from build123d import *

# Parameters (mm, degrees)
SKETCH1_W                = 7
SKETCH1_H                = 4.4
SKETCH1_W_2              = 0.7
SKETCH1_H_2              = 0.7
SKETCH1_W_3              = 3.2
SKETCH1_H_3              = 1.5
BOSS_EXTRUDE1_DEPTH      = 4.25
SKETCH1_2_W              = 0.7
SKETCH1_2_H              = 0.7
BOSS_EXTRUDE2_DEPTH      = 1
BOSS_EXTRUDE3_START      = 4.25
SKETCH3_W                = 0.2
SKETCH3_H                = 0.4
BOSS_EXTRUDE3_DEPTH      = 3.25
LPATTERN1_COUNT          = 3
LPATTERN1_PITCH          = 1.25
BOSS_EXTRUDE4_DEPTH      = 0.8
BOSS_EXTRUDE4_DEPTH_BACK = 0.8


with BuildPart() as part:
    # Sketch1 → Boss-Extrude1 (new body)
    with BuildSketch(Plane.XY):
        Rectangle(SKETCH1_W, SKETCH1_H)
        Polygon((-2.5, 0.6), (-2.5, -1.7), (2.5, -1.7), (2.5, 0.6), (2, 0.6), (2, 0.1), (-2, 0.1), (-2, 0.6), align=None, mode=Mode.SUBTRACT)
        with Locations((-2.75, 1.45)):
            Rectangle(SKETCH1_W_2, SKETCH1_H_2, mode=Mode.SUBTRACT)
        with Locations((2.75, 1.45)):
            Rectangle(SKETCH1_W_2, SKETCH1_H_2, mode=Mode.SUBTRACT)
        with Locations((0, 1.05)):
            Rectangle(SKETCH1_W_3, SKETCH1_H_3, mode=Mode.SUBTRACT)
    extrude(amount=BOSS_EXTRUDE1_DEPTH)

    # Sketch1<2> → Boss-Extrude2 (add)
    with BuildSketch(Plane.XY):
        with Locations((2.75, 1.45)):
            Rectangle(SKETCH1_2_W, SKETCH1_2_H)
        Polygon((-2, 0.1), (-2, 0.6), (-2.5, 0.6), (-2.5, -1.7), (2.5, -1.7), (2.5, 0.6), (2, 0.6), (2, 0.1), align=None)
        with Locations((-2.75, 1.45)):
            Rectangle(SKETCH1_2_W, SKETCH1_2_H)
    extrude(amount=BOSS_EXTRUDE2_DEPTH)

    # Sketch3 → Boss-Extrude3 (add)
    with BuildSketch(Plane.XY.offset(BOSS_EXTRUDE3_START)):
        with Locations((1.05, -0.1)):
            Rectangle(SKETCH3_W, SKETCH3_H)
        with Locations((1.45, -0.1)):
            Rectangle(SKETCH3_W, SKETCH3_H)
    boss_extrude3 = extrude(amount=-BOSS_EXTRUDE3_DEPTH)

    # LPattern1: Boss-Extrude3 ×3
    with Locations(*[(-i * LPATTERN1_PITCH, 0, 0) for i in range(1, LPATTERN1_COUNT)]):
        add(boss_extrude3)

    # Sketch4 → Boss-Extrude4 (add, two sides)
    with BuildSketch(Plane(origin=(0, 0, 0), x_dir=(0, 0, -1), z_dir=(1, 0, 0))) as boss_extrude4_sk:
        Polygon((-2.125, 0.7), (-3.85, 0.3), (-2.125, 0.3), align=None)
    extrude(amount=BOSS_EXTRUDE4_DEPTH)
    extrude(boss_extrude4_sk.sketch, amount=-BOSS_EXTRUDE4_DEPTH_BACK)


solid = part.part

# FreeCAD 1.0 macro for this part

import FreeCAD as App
import Part
import Sketcher
from FreeCAD import Vector
Q = App.Units.Quantity

doc = App.newDocument("Part")
body = doc.addObject("PartDesign::Body", "Body")

# Sketch on XY plane
sketch1 = body.newObject("Sketcher::SketchObject", "Sketch")
sketch1.AttachmentSupport = (doc.getObject("XY_Plane"), [""])
sketch1.MapMode = "FlatFace"
sketch1.addGeometry([
    Part.LineSegment(Vector(-3.5, 2.2, 0), Vector(-3.5, -2.2, 0)),  # 0
    Part.LineSegment(Vector(-3.5, -2.2, 0), Vector(3.5, -2.2, 0)),  # 1
    Part.LineSegment(Vector(3.5, -2.2, 0), Vector(3.5, 2.2, 0)),  # 2
    Part.LineSegment(Vector(3.5, 2.2, 0), Vector(-3.5, 2.2, 0)),  # 3
    Part.LineSegment(Vector(-2.5, -1.7, 0), Vector(-2.5, 0.6, 0)),  # 4
    Part.LineSegment(Vector(-2.5, 0.6, 0), Vector(-2, 0.6, 0)),  # 5
    Part.LineSegment(Vector(-2, 0.6, 0), Vector(-2, 0.1, 0)),  # 6
    Part.LineSegment(Vector(-2, 0.1, 0), Vector(2, 0.1, 0)),  # 7
    Part.LineSegment(Vector(2, 0.1, 0), Vector(2, 0.6, 0)),  # 8
    Part.LineSegment(Vector(2, 0.6, 0), Vector(2.5, 0.6, 0)),  # 9
    Part.LineSegment(Vector(2.5, 0.6, 0), Vector(2.5, -1.7, 0)),  # 10
    Part.LineSegment(Vector(2.5, -1.7, 0), Vector(-2.5, -1.7, 0)),  # 11
    Part.LineSegment(Vector(-2.4, 1.1, 0), Vector(-3.1, 1.1, 0)),  # 12
    Part.LineSegment(Vector(-3.1, 1.1, 0), Vector(-3.1, 1.8, 0)),  # 13
    Part.LineSegment(Vector(-3.1, 1.8, 0), Vector(-2.4, 1.8, 0)),  # 14
    Part.LineSegment(Vector(-2.4, 1.8, 0), Vector(-2.4, 1.1, 0)),  # 15
    Part.LineSegment(Vector(1.6, 0.3, 0), Vector(-1.6, 0.3, 0)),  # 16
    Part.LineSegment(Vector(-1.6, 0.3, 0), Vector(-1.6, 1.8, 0)),  # 17
    Part.LineSegment(Vector(-1.6, 1.8, 0), Vector(1.6, 1.8, 0)),  # 18
    Part.LineSegment(Vector(1.6, 1.8, 0), Vector(1.6, 0.3, 0)),  # 19
    Part.LineSegment(Vector(3.1, 1.1, 0), Vector(2.4, 1.1, 0)),  # 20
    Part.LineSegment(Vector(2.4, 1.1, 0), Vector(2.4, 1.8, 0)),  # 21
    Part.LineSegment(Vector(2.4, 1.8, 0), Vector(3.1, 1.8, 0)),  # 22
    Part.LineSegment(Vector(3.1, 1.8, 0), Vector(3.1, 1.1, 0)),  # 23
], False)
sketch1.addConstraint([
    Sketcher.Constraint("Coincident", 0, 2, 1, 1),
    Sketcher.Constraint("Coincident", 1, 2, 2, 1),
    Sketcher.Constraint("Coincident", 2, 2, 3, 1),
    Sketcher.Constraint("Coincident", 3, 2, 0, 1),
    Sketcher.Constraint("Coincident", 4, 2, 5, 1),
    Sketcher.Constraint("Coincident", 5, 2, 6, 1),
    Sketcher.Constraint("Coincident", 6, 2, 7, 1),
    Sketcher.Constraint("Coincident", 7, 2, 8, 1),
    Sketcher.Constraint("Coincident", 8, 2, 9, 1),
    Sketcher.Constraint("Coincident", 9, 2, 10, 1),
    Sketcher.Constraint("Coincident", 10, 2, 11, 1),
    Sketcher.Constraint("Coincident", 11, 2, 4, 1),
    Sketcher.Constraint("Coincident", 12, 2, 13, 1),
    Sketcher.Constraint("Coincident", 13, 2, 14, 1),
    Sketcher.Constraint("Coincident", 14, 2, 15, 1),
    Sketcher.Constraint("Coincident", 15, 2, 12, 1),
    Sketcher.Constraint("Coincident", 16, 2, 17, 1),
    Sketcher.Constraint("Coincident", 17, 2, 18, 1),
    Sketcher.Constraint("Coincident", 18, 2, 19, 1),
    Sketcher.Constraint("Coincident", 19, 2, 16, 1),
    Sketcher.Constraint("Coincident", 20, 2, 21, 1),
    Sketcher.Constraint("Coincident", 21, 2, 22, 1),
    Sketcher.Constraint("Coincident", 22, 2, 23, 1),
    Sketcher.Constraint("Coincident", 23, 2, 20, 1),
    Sketcher.Constraint("Vertical", 0),
    Sketcher.Constraint("Horizontal", 1),
    Sketcher.Constraint("Vertical", 2),
    Sketcher.Constraint("Horizontal", 3),
    Sketcher.Constraint("Vertical", 4),
    Sketcher.Constraint("Horizontal", 5),
    Sketcher.Constraint("Vertical", 6),
    Sketcher.Constraint("Horizontal", 7),
    Sketcher.Constraint("Vertical", 8),
    Sketcher.Constraint("Horizontal", 9),
    Sketcher.Constraint("Vertical", 10),
    Sketcher.Constraint("Horizontal", 11),
    Sketcher.Constraint("Horizontal", 12),
    Sketcher.Constraint("Vertical", 13),
    Sketcher.Constraint("Horizontal", 14),
    Sketcher.Constraint("Vertical", 15),
    Sketcher.Constraint("Horizontal", 16),
    Sketcher.Constraint("Vertical", 17),
    Sketcher.Constraint("Horizontal", 18),
    Sketcher.Constraint("Vertical", 19),
    Sketcher.Constraint("Horizontal", 20),
    Sketcher.Constraint("Vertical", 21),
    Sketcher.Constraint("Horizontal", 22),
    Sketcher.Constraint("Vertical", 23),
    Sketcher.Constraint("Symmetric", 0, 2, 2, 2, -1, 1),
    Sketcher.Constraint("Symmetric", 5, 2, 8, 2, -2),
    Sketcher.Constraint("Symmetric", 15, 2, 20, 2, -2),
    Sketcher.Constraint("Symmetric", 13, 2, 22, 2, -2),
    Sketcher.Constraint("Horizontal", 14, 2, 17, 2),
    Sketcher.Constraint("Equal", 5, 9),
    Sketcher.Constraint("Equal", 9, 6),
    Sketcher.Constraint("Equal", 22, 13),
    Sketcher.Constraint("DistanceX", 1, 1, 1, 2, Q("7 mm")),
    Sketcher.Constraint("DistanceX", 7, 1, 7, 2, Q("4 mm")),
    Sketcher.Constraint("DistanceX", 11, 2, 11, 1, Q("5 mm")),
    Sketcher.Constraint("DistanceX", 12, 2, 12, 1, Q("0.7 mm")),
    Sketcher.Constraint("DistanceX", 16, 2, 16, 1, Q("3.2 mm")),
    Sketcher.Constraint("DistanceY", 0, 2, 0, 1, Q("4.4 mm")),
    Sketcher.Constraint("DistanceY", 4, 1, 4, 2, Q("2.3 mm")),
    Sketcher.Constraint("DistanceY", 17, 1, 17, 2, Q("1.5 mm")),
    Sketcher.Constraint("DistanceY", 6, 2, 12, 2, Q("1 mm")),
    Sketcher.Constraint("DistanceY", -1, 1, 4, 2, Q("0.6 mm")),
    Sketcher.Constraint("DistanceX", 12, 2, -1, 1, Q("3.1 mm")),
    Sketcher.Constraint("DistanceX", 16, 2, -1, 1, Q("1.6 mm")),
])
pad1 = body.newObject("PartDesign::Pad", "Pad")
pad1.Profile = sketch1
pad1.Length = 4.25

# Sketch on XY plane
sketch2 = body.newObject("Sketcher::SketchObject", "Sketch001")
sketch2.AttachmentSupport = (doc.getObject("XY_Plane"), [""])
sketch2.MapMode = "FlatFace"
sketch2.addGeometry([
    Part.LineSegment(Vector(2.4, 1.8, 0), Vector(2.4, 1.1, 0)),  # 0
    Part.LineSegment(Vector(2.4, 1.1, 0), Vector(3.1, 1.1, 0)),  # 1
    Part.LineSegment(Vector(3.1, 1.1, 0), Vector(3.1, 1.8, 0)),  # 2
    Part.LineSegment(Vector(3.1, 1.8, 0), Vector(2.4, 1.8, 0)),  # 3
    Part.LineSegment(Vector(-2, 0.1, 0), Vector(-2, 0.6, 0)),  # 4
    Part.LineSegment(Vector(-2, 0.6, 0), Vector(-2.5, 0.6, 0)),  # 5
    Part.LineSegment(Vector(-2.5, 0.6, 0), Vector(-2.5, -1.7, 0)),  # 6
    Part.LineSegment(Vector(-2.5, -1.7, 0), Vector(2.5, -1.7, 0)),  # 7
    Part.LineSegment(Vector(2.5, -1.7, 0), Vector(2.5, 0.6, 0)),  # 8
    Part.LineSegment(Vector(2.5, 0.6, 0), Vector(2, 0.6, 0)),  # 9
    Part.LineSegment(Vector(2, 0.6, 0), Vector(2, 0.1, 0)),  # 10
    Part.LineSegment(Vector(2, 0.1, 0), Vector(-2, 0.1, 0)),  # 11
    Part.LineSegment(Vector(-3.1, 1.8, 0), Vector(-3.1, 1.1, 0)),  # 12
    Part.LineSegment(Vector(-3.1, 1.1, 0), Vector(-2.4, 1.1, 0)),  # 13
    Part.LineSegment(Vector(-2.4, 1.1, 0), Vector(-2.4, 1.8, 0)),  # 14
    Part.LineSegment(Vector(-2.4, 1.8, 0), Vector(-3.1, 1.8, 0)),  # 15
], False)
sketch2.addConstraint([
    Sketcher.Constraint("Coincident", 0, 2, 1, 1),
    Sketcher.Constraint("Coincident", 1, 2, 2, 1),
    Sketcher.Constraint("Coincident", 2, 2, 3, 1),
    Sketcher.Constraint("Coincident", 3, 2, 0, 1),
    Sketcher.Constraint("Coincident", 4, 2, 5, 1),
    Sketcher.Constraint("Coincident", 5, 2, 6, 1),
    Sketcher.Constraint("Coincident", 6, 2, 7, 1),
    Sketcher.Constraint("Coincident", 7, 2, 8, 1),
    Sketcher.Constraint("Coincident", 8, 2, 9, 1),
    Sketcher.Constraint("Coincident", 9, 2, 10, 1),
    Sketcher.Constraint("Coincident", 10, 2, 11, 1),
    Sketcher.Constraint("Coincident", 11, 2, 4, 1),
    Sketcher.Constraint("Coincident", 12, 2, 13, 1),
    Sketcher.Constraint("Coincident", 13, 2, 14, 1),
    Sketcher.Constraint("Coincident", 14, 2, 15, 1),
    Sketcher.Constraint("Coincident", 15, 2, 12, 1),
    Sketcher.Constraint("Vertical", 0),
    Sketcher.Constraint("Horizontal", 1),
    Sketcher.Constraint("Vertical", 2),
    Sketcher.Constraint("Horizontal", 3),
    Sketcher.Constraint("Vertical", 4),
    Sketcher.Constraint("Horizontal", 5),
    Sketcher.Constraint("Vertical", 6),
    Sketcher.Constraint("Horizontal", 7),
    Sketcher.Constraint("Vertical", 8),
    Sketcher.Constraint("Horizontal", 9),
    Sketcher.Constraint("Vertical", 10),
    Sketcher.Constraint("Horizontal", 11),
    Sketcher.Constraint("Vertical", 12),
    Sketcher.Constraint("Horizontal", 13),
    Sketcher.Constraint("Vertical", 14),
    Sketcher.Constraint("Horizontal", 15),
    Sketcher.Constraint("Symmetric", 5, 2, 8, 2, -2),
    Sketcher.Constraint("Symmetric", 1, 2, 12, 2, -2),
    Sketcher.Constraint("Symmetric", 3, 2, 14, 2, -2),
    Sketcher.Constraint("Equal", 5, 9),
    Sketcher.Constraint("Equal", 15, 0),
    Sketcher.Constraint("Equal", 9, 4),
    Sketcher.Constraint("DistanceX", 7, 1, 7, 2, Q("5 mm")),
    Sketcher.Constraint("DistanceX", 11, 2, 11, 1, Q("4 mm")),
    Sketcher.Constraint("DistanceX", 1, 1, 1, 2, Q("0.7 mm")),
    Sketcher.Constraint("DistanceY", 6, 2, 6, 1, Q("2.3 mm")),
    Sketcher.Constraint("DistanceY", 10, 2, 0, 2, Q("1 mm")),
    Sketcher.Constraint("DistanceX", -1, 1, 0, 2, Q("2.4 mm")),
    Sketcher.Constraint("DistanceY", -1, 1, 0, 2, Q("1.1 mm")),
])
pad2 = body.newObject("PartDesign::Pad", "Pad001")
pad2.Profile = sketch2
pad2.Length = 1

# Sketch on XY plane
sketch3 = body.newObject("Sketcher::SketchObject", "Sketch002")
sketch3.AttachmentSupport = (doc.getObject("XY_Plane"), [""])
sketch3.MapMode = "FlatFace"
sketch3.AttachmentOffset = App.Placement(Vector(0, 0, 4.25), App.Rotation())
sketch3.addGeometry([
    Part.LineSegment(Vector(0.95, 0.1, 0), Vector(0.95, -0.3, 0)),  # 0
    Part.LineSegment(Vector(0.95, -0.3, 0), Vector(1.15, -0.3, 0)),  # 1
    Part.LineSegment(Vector(1.15, -0.3, 0), Vector(1.15, 0.1, 0)),  # 2
    Part.LineSegment(Vector(1.15, 0.1, 0), Vector(0.95, 0.1, 0)),  # 3
    Part.LineSegment(Vector(1.35, 0.1, 0), Vector(1.35, -0.3, 0)),  # 4
    Part.LineSegment(Vector(1.35, -0.3, 0), Vector(1.55, -0.3, 0)),  # 5
    Part.LineSegment(Vector(1.55, -0.3, 0), Vector(1.55, 0.1, 0)),  # 6
    Part.LineSegment(Vector(1.55, 0.1, 0), Vector(1.35, 0.1, 0)),  # 7
], False)
sketch3.addConstraint([
    Sketcher.Constraint("Coincident", 0, 2, 1, 1),
    Sketcher.Constraint("Coincident", 1, 2, 2, 1),
    Sketcher.Constraint("Coincident", 2, 2, 3, 1),
    Sketcher.Constraint("Coincident", 3, 2, 0, 1),
    Sketcher.Constraint("Coincident", 4, 2, 5, 1),
    Sketcher.Constraint("Coincident", 5, 2, 6, 1),
    Sketcher.Constraint("Coincident", 6, 2, 7, 1),
    Sketcher.Constraint("Coincident", 7, 2, 4, 1),
    Sketcher.Constraint("Vertical", 0),
    Sketcher.Constraint("Horizontal", 1),
    Sketcher.Constraint("Vertical", 2),
    Sketcher.Constraint("Horizontal", 3),
    Sketcher.Constraint("Vertical", 4),
    Sketcher.Constraint("Horizontal", 5),
    Sketcher.Constraint("Vertical", 6),
    Sketcher.Constraint("Horizontal", 7),
    Sketcher.Constraint("Horizontal", 1, 2, 4, 2),
    Sketcher.Constraint("Horizontal", 3, 2, 6, 2),
    Sketcher.Constraint("Equal", 3, 5),
    Sketcher.Constraint("DistanceX", 1, 1, 1, 2, Q("0.2 mm")),
    Sketcher.Constraint("DistanceY", 0, 2, 0, 1, Q("0.4 mm")),
    Sketcher.Constraint("DistanceY", 0, 2, -1, 1, Q("0.3 mm")),
    Sketcher.Constraint("DistanceX", 1, 2, 4, 2, Q("0.2 mm")),
    Sketcher.Constraint("DistanceX", -1, 1, 0, 2, Q("0.95 mm")),
])
pad3 = body.newObject("PartDesign::Pad", "Pad002")
pad3.Profile = sketch3
pad3.Length = 3.25
pad3.Reversed = True
doc.recompute()

linearpattern = body.newObject("PartDesign::LinearPattern", "LinearPattern")
linearpattern.Originals = [pad3]
linearpattern.Direction = (doc.getObject("X_Axis"), [""])
linearpattern.Mode = "offset"
linearpattern.Offset = 1.25
linearpattern.Occurrences = 3
linearpattern.Reversed = True
body.Tip = linearpattern

# Sketch on YZ plane
sketch4 = body.newObject("Sketcher::SketchObject", "Sketch003")
sketch4.AttachmentSupport = (doc.getObject("YZ_Plane"), [""])
sketch4.MapMode = "FlatFace"
sketch4.addGeometry([
    Part.LineSegment(Vector(0.7, 2.12, 0), Vector(0.3, 3.85, 0)),
    Part.LineSegment(Vector(0.3, 3.85, 0), Vector(0.3, 2.12, 0)),
    Part.LineSegment(Vector(0.3, 2.12, 0), Vector(0.7, 2.12, 0)),
], False)
sketch4.addConstraint([
    Sketcher.Constraint("Coincident", 0, 2, 1, 1),
    Sketcher.Constraint("Coincident", 1, 2, 2, 1),
    Sketcher.Constraint("Coincident", 2, 2, 0, 1),
    Sketcher.Constraint("Vertical", 1),
    Sketcher.Constraint("Horizontal", 2),
    Sketcher.Constraint("DistanceX", 2, 1, 2, 2, Q("0.4 mm")),
    Sketcher.Constraint("DistanceX", -1, 1, 0, 2, Q("0.3 mm")),
    Sketcher.Constraint("DistanceY", 1, 2, 1, 1, Q("1.725 mm")),
    Sketcher.Constraint("DistanceY", -1, 1, 0, 2, Q("3.85 mm")),
])
pad4 = body.newObject("PartDesign::Pad", "Pad003")
pad4.Profile = sketch4
pad4.Type = "TwoLengths"
pad4.Length = 0.8
pad4.Length2 = 0.8

doc.recompute()
